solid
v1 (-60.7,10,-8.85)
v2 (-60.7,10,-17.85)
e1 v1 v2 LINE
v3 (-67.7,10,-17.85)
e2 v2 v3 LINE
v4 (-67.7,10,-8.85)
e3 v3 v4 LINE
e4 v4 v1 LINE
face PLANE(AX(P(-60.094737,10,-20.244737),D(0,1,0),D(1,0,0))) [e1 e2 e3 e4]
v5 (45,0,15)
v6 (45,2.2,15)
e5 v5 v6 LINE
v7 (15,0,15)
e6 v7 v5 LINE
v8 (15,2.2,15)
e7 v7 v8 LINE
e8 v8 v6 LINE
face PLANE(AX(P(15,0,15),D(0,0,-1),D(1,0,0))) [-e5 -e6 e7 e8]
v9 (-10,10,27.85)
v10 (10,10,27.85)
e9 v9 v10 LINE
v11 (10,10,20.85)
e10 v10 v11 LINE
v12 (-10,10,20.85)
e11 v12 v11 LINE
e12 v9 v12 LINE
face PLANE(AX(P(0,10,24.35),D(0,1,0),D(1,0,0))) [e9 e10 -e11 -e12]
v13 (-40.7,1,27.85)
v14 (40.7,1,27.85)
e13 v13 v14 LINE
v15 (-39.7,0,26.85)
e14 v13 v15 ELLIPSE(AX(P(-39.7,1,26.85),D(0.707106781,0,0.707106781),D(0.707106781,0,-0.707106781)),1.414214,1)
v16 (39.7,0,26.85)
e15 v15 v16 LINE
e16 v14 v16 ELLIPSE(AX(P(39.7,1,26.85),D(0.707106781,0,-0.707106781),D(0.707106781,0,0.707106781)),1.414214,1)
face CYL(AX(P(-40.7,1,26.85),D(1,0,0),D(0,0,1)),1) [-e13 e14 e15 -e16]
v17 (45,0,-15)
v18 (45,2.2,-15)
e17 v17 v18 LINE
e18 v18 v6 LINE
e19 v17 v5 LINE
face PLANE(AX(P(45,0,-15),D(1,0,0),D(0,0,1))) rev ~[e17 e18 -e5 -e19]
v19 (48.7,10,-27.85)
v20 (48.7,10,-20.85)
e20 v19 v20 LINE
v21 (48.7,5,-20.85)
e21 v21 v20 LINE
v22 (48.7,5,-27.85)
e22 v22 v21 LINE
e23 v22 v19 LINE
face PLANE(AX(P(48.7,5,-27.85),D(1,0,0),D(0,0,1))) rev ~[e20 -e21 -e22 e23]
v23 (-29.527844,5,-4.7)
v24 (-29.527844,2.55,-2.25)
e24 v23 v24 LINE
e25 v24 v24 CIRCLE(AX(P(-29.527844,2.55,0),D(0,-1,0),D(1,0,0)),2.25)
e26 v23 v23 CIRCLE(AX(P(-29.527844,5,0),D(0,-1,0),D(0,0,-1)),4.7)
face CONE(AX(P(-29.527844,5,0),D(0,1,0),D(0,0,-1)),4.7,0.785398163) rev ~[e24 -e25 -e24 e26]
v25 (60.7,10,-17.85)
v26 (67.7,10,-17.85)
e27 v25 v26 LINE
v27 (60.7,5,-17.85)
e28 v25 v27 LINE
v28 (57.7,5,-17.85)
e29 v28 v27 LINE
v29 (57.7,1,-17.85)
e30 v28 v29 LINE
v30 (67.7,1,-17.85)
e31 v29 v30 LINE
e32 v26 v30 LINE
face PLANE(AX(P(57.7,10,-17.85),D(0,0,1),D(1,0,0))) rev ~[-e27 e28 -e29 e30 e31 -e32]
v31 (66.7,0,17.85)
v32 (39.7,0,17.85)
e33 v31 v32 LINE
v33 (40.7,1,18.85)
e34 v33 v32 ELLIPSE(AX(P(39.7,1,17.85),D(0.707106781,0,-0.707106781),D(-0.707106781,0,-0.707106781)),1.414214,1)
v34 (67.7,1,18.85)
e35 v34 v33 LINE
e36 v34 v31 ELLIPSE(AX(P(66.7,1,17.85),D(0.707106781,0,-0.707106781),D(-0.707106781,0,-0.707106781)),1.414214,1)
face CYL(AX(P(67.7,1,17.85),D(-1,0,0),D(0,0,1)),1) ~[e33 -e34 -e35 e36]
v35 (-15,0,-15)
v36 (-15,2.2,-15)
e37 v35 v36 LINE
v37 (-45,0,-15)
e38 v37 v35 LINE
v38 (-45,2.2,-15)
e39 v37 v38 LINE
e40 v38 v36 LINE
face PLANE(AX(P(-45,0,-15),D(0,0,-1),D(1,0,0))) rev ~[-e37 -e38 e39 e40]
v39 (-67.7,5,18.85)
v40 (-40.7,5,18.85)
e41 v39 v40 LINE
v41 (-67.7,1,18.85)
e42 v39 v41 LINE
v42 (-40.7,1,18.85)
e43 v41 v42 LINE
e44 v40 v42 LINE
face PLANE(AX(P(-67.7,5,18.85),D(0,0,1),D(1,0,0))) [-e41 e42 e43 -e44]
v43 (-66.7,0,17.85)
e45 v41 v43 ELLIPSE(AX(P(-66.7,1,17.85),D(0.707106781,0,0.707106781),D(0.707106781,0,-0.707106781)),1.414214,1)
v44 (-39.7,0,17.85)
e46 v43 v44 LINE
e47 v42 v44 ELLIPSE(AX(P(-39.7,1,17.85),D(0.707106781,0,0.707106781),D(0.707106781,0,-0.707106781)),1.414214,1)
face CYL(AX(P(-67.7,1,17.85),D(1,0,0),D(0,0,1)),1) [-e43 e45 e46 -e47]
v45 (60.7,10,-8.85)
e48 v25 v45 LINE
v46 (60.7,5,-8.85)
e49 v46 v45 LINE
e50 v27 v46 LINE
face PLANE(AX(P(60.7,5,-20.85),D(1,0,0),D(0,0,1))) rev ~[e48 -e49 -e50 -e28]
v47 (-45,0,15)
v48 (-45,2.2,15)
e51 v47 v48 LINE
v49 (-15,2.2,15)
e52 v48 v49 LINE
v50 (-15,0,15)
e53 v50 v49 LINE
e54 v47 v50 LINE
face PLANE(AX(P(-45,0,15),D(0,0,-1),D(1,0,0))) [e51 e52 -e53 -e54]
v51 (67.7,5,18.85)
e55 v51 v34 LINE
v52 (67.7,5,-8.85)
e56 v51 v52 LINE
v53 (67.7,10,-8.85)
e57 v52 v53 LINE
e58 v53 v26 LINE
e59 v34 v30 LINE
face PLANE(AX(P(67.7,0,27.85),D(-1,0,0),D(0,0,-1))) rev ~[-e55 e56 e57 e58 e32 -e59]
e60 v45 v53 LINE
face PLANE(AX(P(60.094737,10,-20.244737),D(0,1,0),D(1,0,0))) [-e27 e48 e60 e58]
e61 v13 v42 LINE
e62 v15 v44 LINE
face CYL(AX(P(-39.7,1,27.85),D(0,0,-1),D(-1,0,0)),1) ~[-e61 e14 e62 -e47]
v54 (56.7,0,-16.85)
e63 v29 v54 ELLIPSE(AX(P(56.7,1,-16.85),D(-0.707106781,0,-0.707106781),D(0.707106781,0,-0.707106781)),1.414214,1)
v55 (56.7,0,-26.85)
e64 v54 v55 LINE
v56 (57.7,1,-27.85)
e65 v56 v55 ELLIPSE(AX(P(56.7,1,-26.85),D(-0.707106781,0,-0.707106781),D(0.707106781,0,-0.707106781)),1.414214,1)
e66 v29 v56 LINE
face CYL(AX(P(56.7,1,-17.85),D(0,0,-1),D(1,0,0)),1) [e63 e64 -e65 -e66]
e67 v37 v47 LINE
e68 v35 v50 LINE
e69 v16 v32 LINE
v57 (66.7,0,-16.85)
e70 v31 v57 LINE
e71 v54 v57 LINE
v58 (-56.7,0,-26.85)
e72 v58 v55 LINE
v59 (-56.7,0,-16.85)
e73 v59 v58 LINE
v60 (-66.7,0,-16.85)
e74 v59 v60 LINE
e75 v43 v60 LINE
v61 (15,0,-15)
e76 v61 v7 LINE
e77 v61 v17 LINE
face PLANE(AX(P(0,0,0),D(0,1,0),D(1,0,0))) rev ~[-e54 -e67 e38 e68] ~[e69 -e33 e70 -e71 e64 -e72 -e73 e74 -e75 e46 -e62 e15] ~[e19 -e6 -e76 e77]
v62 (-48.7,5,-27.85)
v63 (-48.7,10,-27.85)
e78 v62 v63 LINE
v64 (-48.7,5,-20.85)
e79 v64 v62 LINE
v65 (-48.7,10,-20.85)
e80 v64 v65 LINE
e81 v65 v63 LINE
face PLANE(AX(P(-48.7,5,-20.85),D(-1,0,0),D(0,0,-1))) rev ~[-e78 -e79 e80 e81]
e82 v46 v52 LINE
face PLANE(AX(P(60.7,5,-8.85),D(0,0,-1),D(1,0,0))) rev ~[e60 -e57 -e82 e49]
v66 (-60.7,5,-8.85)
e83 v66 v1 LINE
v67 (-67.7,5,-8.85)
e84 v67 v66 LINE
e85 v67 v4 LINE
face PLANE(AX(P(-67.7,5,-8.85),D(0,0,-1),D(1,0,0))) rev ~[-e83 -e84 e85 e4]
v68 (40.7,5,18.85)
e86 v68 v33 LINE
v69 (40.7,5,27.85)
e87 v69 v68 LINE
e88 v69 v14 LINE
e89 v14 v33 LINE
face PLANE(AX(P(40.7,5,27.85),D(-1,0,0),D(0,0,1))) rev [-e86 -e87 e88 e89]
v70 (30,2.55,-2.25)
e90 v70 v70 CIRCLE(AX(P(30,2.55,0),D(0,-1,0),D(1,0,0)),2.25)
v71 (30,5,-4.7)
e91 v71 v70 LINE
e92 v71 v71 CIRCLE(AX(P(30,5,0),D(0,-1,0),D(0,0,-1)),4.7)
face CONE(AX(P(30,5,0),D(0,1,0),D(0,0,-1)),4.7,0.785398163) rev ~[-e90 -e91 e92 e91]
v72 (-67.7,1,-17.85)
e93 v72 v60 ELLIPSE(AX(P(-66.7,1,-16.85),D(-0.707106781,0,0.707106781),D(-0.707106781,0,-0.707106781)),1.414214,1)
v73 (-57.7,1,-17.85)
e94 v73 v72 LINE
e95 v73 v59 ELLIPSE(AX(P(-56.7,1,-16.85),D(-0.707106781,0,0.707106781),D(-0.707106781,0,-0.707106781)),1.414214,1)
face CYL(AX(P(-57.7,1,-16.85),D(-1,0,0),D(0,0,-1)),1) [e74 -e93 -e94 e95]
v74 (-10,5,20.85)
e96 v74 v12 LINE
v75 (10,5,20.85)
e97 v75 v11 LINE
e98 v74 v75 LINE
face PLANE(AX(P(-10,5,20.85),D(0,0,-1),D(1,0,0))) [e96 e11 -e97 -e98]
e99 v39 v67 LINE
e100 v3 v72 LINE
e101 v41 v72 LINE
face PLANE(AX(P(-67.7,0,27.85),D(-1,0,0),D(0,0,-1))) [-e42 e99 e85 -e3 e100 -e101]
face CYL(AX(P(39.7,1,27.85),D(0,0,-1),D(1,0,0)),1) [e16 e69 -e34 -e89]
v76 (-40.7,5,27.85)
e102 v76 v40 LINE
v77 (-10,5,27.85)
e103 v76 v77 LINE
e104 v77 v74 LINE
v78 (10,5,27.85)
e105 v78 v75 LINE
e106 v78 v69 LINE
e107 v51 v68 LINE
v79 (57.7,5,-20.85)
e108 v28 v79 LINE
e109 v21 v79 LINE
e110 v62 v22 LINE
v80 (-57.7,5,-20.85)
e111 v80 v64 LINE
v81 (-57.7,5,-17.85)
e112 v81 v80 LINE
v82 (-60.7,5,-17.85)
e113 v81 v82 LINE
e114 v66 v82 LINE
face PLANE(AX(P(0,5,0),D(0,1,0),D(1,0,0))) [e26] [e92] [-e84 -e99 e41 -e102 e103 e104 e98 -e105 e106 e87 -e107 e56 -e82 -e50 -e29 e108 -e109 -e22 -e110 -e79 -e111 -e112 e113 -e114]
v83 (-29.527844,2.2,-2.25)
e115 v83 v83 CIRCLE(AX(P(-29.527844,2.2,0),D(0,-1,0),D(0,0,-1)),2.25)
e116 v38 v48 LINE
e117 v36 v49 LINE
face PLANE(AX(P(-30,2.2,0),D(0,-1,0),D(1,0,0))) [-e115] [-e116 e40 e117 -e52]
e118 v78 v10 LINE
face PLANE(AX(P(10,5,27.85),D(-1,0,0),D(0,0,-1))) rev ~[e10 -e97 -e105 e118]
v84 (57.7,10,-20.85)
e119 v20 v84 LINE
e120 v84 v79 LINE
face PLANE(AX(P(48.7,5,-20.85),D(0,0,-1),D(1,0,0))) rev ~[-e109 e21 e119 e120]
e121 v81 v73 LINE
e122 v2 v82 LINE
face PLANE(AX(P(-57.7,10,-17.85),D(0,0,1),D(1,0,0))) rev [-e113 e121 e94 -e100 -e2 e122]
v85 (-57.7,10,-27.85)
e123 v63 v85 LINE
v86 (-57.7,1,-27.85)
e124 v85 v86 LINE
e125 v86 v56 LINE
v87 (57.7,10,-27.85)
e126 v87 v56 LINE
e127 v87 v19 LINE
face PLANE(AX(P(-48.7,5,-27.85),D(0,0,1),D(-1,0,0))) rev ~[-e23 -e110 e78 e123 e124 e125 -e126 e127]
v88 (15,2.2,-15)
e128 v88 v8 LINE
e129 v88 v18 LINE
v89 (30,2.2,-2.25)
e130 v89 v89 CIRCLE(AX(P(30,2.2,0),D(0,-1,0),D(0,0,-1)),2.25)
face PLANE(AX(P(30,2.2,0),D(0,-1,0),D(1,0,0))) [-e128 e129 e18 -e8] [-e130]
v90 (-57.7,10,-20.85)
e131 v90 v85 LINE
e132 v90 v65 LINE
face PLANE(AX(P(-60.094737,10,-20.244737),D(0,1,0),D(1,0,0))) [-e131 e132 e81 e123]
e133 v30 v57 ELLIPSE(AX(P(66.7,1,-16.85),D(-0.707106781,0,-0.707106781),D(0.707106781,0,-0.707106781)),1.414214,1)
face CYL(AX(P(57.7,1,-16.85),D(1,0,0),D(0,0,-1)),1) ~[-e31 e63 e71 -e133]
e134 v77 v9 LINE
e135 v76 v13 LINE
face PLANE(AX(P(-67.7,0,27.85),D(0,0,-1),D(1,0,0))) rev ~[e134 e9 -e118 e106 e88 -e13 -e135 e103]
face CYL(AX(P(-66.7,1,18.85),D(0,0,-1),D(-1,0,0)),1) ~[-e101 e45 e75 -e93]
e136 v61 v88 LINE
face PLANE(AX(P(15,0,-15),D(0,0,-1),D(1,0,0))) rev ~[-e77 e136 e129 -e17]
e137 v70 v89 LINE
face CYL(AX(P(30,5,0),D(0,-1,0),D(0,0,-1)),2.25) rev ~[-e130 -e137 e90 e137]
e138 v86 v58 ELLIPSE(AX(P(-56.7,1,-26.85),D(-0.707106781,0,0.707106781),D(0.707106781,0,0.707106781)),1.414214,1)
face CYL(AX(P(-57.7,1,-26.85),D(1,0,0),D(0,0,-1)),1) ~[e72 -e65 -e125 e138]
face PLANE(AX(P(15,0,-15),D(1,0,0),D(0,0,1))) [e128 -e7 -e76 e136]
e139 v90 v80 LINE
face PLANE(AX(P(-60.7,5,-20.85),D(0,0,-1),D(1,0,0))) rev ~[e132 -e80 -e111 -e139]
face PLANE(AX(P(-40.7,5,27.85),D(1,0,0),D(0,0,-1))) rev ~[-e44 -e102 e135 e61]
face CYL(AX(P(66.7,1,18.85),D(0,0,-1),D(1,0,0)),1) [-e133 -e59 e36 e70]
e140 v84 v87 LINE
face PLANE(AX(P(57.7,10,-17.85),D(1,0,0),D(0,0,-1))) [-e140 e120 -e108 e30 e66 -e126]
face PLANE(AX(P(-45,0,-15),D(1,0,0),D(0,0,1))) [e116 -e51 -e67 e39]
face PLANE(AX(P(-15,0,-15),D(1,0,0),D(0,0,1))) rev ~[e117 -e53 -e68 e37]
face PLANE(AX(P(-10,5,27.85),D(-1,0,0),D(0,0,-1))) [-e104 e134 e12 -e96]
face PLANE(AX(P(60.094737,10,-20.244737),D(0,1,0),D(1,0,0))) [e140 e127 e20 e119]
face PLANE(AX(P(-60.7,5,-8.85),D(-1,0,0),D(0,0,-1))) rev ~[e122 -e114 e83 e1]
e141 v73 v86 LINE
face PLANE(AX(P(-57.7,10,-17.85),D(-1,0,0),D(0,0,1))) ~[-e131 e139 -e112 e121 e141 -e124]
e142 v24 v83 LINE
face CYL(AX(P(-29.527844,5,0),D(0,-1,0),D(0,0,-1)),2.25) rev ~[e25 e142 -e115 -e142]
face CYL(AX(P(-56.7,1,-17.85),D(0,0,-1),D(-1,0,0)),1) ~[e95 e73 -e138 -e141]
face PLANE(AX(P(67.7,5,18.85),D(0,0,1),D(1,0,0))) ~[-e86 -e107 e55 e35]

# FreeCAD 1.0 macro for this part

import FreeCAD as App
import Part
import Sketcher

V = App.Vector


def edges_at(feature, points):
    """Names of the edges that pass closest to the given points."""
    edges = feature.Shape.Edges
    near = lambda p: min(range(len(edges)), key=lambda i: edges[i].distToShape(Part.Vertex(*p))[0])
    return sorted({f"Edge{near(p) + 1}" for p in points})


def add_polygon(sketch, points):
    """Adds a closed chain of lines whose ends are joined by coincident constraints."""
    first, n = sketch.GeometryCount, len(points)
    for a, b in zip(points, points[1:] + points[:1]):
        sketch.addGeometry(Part.LineSegment(App.Vector(*a, 0), App.Vector(*b, 0)), False)
    for i in range(n):
        sketch.addConstraint(Sketcher.Constraint("Coincident", first + i, 2, first + (i + 1) % n, 1))

doc = App.newDocument("Part")
body = doc.addObject("PartDesign::Body", "Body")

# Sketch on XZ plane
sketch1 = body.newObject("Sketcher::SketchObject", "Sketch")
sketch1.AttachmentSupport = (doc.getObject("XZ_Plane"), [""])
sketch1.MapMode = "FlatFace"
add_polygon(sketch1, [(-67.7, -27.85), (-67.7, 27.85), (67.7, 27.85), (67.7, -27.85)])  # lines 0-3
sketch1.addConstraint(Sketcher.Constraint("Vertical", 0))
sketch1.addConstraint(Sketcher.Constraint("Horizontal", 1))
sketch1.addConstraint(Sketcher.Constraint("Vertical", 2))
sketch1.addConstraint(Sketcher.Constraint("Horizontal", 3))
sketch1.addConstraint(Sketcher.Constraint("Symmetric", 0, 2, 2, 2, -1, 1))
sketch1.addConstraint(Sketcher.Constraint("DistanceX", 1, 1, 1, 2, 135.4))
sketch1.addConstraint(Sketcher.Constraint("DistanceY", 0, 1, 0, 2, 55.7))
pad1 = body.newObject("PartDesign::Pad", "Pad")
pad1.Profile = sketch1
pad1.Length = 5
pad1.Reversed = True

# Sketch on XZ plane
sketch2 = body.newObject("Sketcher::SketchObject", "Sketch001")
sketch2.AttachmentSupport = (doc.getObject("XZ_Plane"), [""])
sketch2.MapMode = "FlatFace"
sketch2.AttachmentOffset = App.Placement(V(0, 0, -5), App.Rotation())
add_polygon(sketch2, [(-60.7, -20.85), (-48.7, -20.85), (-48.7, -27.85), (-67.7, -27.85), (-67.7, -8.85), (-60.7, -8.85)])  # lines 0-5
add_polygon(sketch2, [(-10, 20.85), (-10, 27.85), (10, 27.85), (10, 20.85)])  # lines 6-9
add_polygon(sketch2, [(67.7, -27.85), (48.7, -27.85), (48.7, -20.85), (60.7, -20.85), (60.7, -8.85), (67.7, -8.85)])  # lines 10-15
sketch2.addConstraint(Sketcher.Constraint("Horizontal", 0))
sketch2.addConstraint(Sketcher.Constraint("Vertical", 1))
sketch2.addConstraint(Sketcher.Constraint("Horizontal", 2))
sketch2.addConstraint(Sketcher.Constraint("Vertical", 3))
sketch2.addConstraint(Sketcher.Constraint("Horizontal", 4))
sketch2.addConstraint(Sketcher.Constraint("Vertical", 5))
sketch2.addConstraint(Sketcher.Constraint("Vertical", 6))
sketch2.addConstraint(Sketcher.Constraint("Horizontal", 7))
sketch2.addConstraint(Sketcher.Constraint("Vertical", 8))
sketch2.addConstraint(Sketcher.Constraint("Horizontal", 9))
sketch2.addConstraint(Sketcher.Constraint("Horizontal", 10))
sketch2.addConstraint(Sketcher.Constraint("Vertical", 11))
sketch2.addConstraint(Sketcher.Constraint("Horizontal", 12))
sketch2.addConstraint(Sketcher.Constraint("Vertical", 13))
sketch2.addConstraint(Sketcher.Constraint("Horizontal", 14))
sketch2.addConstraint(Sketcher.Constraint("Vertical", 15))
sketch2.addConstraint(Sketcher.Constraint("Symmetric", 1, 2, 10, 2, -2))
sketch2.addConstraint(Sketcher.Constraint("Symmetric", 5, 2, 12, 2, -2))
sketch2.addConstraint(Sketcher.Constraint("Symmetric", 3, 2, 14, 2, -2))
sketch2.addConstraint(Sketcher.Constraint("Equal", 14, 1))
sketch2.addConstraint(Sketcher.Constraint("Equal", 10, 3))
sketch2.addConstraint(Sketcher.Constraint("Equal", 1, 6))
sketch2.addConstraint(Sketcher.Constraint("DistanceX", 0, 1, 0, 2, 12.0))
sketch2.addConstraint(Sketcher.Constraint("DistanceX", 2, 2, 2, 1, 19.0))
sketch2.addConstraint(Sketcher.Constraint("DistanceX", 7, 1, 7, 2, 20.0))
sketch2.addConstraint(Sketcher.Constraint("DistanceX", 6, 2, -1, 1, 10.0))
sketch2.addConstraint(Sketcher.Constraint("DistanceX", 0, 2, -1, 1, 48.7))
sketch2.addConstraint(Sketcher.Constraint("DistanceY", 0, 2, 6, 2, 48.7))
sketch2.addConstraint(Sketcher.Constraint("DistanceY", 0, 2, -1, 1, 20.85))
pad2 = body.newObject("PartDesign::Pad", "Pad001")
pad2.Profile = sketch2
pad2.Length = 5
pad2.Reversed = True

# Sketch on XZ plane
sketch3 = body.newObject("Sketcher::SketchObject", "Sketch002")
sketch3.AttachmentSupport = (doc.getObject("XZ_Plane"), [""])
sketch3.MapMode = "FlatFace"
sketch3.AttachmentOffset = App.Placement(V(0, 0, -5), App.Rotation())
add_polygon(sketch3, [(-67.7, 18.85), (-67.7, 27.85), (-40.7, 27.85), (-40.7, 18.85)])  # lines 0-3
sketch3.addConstraint(Sketcher.Constraint("Vertical", 0))
sketch3.addConstraint(Sketcher.Constraint("Horizontal", 1))
sketch3.addConstraint(Sketcher.Constraint("Vertical", 2))
sketch3.addConstraint(Sketcher.Constraint("Horizontal", 3))
sketch3.addConstraint(Sketcher.Constraint("DistanceX", 1, 1, 1, 2, 27.0))
sketch3.addConstraint(Sketcher.Constraint("DistanceY", 0, 1, 0, 2, 9.0))
sketch3.addConstraint(Sketcher.Constraint("DistanceX", 0, 2, -1, 1, 67.7))
sketch3.addConstraint(Sketcher.Constraint("DistanceY", -1, 1, 0, 2, 27.85))
pocket1 = body.newObject("PartDesign::Pocket", "Pocket")
pocket1.Profile = sketch3
pocket1.Type = "ThroughAll"
pocket1.Reversed = True
doc.recompute()

mirrored = body.newObject("PartDesign::Mirrored", "Mirrored")
mirrored.Originals = [pocket1]
mirrored.MirrorPlane = (doc.getObject("YZ_Plane"), [""])
body.Tip = mirrored

# Sketch on XZ plane
sketch4 = body.newObject("Sketcher::SketchObject", "Sketch003")
sketch4.AttachmentSupport = (doc.getObject("XZ_Plane"), [""])
sketch4.MapMode = "FlatFace"
sketch4.AttachmentOffset = App.Placement(V(0, 0, -5), App.Rotation())
sketch4.addGeometry(Part.Circle(V(-29.527844, 0, 0), V(0, 0, 1), 2.25), False)
sketch4.addGeometry(Part.Circle(V(30, 0, 0), V(0, 0, 1), 2.25), False)
sketch4.addConstraint(Sketcher.Constraint("Equal", 0, 1))
sketch4.addConstraint(Sketcher.Constraint("PointOnObject", 0, 3, -1))
sketch4.addConstraint(Sketcher.Constraint("PointOnObject", 1, 3, -1))
sketch4.addConstraint(Sketcher.Constraint("Diameter", 0, 4.5))
sketch4.addConstraint(Sketcher.Constraint("DistanceX", -1, 1, 1, 3, 30.0))
sketch4.addConstraint(Sketcher.Constraint("DistanceX", 0, 3, -1, 1, 29.527844))
doc.recompute()
hole = body.newObject("PartDesign::Hole", "Hole")
hole.Profile = sketch4
hole.ThreadType = "None"
hole.Diameter = 4.5
hole.DepthType = "ThroughAll"
hole.HoleCutType = "Countersink"
hole.HoleCutDiameter = 9.4
hole.HoleCutCountersinkAngle = 90
hole.Reversed = True

# Sketch on XZ plane
sketch5 = body.newObject("Sketcher::SketchObject", "Sketch004")
sketch5.AttachmentSupport = (doc.getObject("XZ_Plane"), [""])
sketch5.MapMode = "FlatFace"
add_polygon(sketch5, [(-45, 15), (-45, -15), (-15, -15), (-15, 15)])  # lines 0-3
add_polygon(sketch5, [(15, 15), (15, -15), (45, -15), (45, 15)])  # lines 4-7
sketch5.addConstraint(Sketcher.Constraint("Vertical", 0))
sketch5.addConstraint(Sketcher.Constraint("Horizontal", 1))
sketch5.addConstraint(Sketcher.Constraint("Vertical", 2))
sketch5.addConstraint(Sketcher.Constraint("Horizontal", 3))
sketch5.addConstraint(Sketcher.Constraint("Vertical", 4))
sketch5.addConstraint(Sketcher.Constraint("Horizontal", 5))
sketch5.addConstraint(Sketcher.Constraint("Vertical", 6))
sketch5.addConstraint(Sketcher.Constraint("Horizontal", 7))
sketch5.addConstraint(Sketcher.Constraint("Symmetric", 2, 2, 4, 2, -1, 1))
sketch5.addConstraint(Sketcher.Constraint("Symmetric", 0, 2, 6, 2, -1, 1))
sketch5.addConstraint(Sketcher.Constraint("Horizontal", 1, 2, 4, 2))
sketch5.addConstraint(Sketcher.Constraint("Equal", 7, 0))
sketch5.addConstraint(Sketcher.Constraint("DistanceX", 1, 1, 1, 2, 30.0))
sketch5.addConstraint(Sketcher.Constraint("DistanceX", 0, 2, -1, 1, 45.0))
pocket2 = body.newObject("PartDesign::Pocket", "Pocket001")
pocket2.Profile = sketch5
pocket2.Length = 2.2

# Sketch on XZ plane
sketch6 = body.newObject("Sketcher::SketchObject", "Sketch005")
sketch6.AttachmentSupport = (doc.getObject("XZ_Plane"), [""])
sketch6.MapMode = "FlatFace"
sketch6.AttachmentOffset = App.Placement(V(0, 0, -10), App.Rotation())
add_polygon(sketch6, [(57.7, -27.85), (57.7, -17.85), (67.7, -17.85), (67.7, -27.85)])  # lines 0-3
sketch6.addConstraint(Sketcher.Constraint("Vertical", 0))
sketch6.addConstraint(Sketcher.Constraint("Horizontal", 1))
sketch6.addConstraint(Sketcher.Constraint("Vertical", 2))
sketch6.addConstraint(Sketcher.Constraint("Horizontal", 3))
sketch6.addConstraint(Sketcher.Constraint("Equal", 3, 0))
sketch6.addConstraint(Sketcher.Constraint("DistanceX", 1, 1, 1, 2, 10.0))
sketch6.addConstraint(Sketcher.Constraint("DistanceX", -1, 1, 0, 2, 57.7))
sketch6.addConstraint(Sketcher.Constraint("DistanceY", 0, 2, -1, 1, 17.85))
pocket3 = body.newObject("PartDesign::Pocket", "Pocket002")
pocket3.Profile = sketch6
pocket3.Type = "ThroughAll"
pocket3.Reversed = True
doc.recompute()

mirrored2 = body.newObject("PartDesign::Mirrored", "Mirrored001")
mirrored2.Originals = [pocket3]
mirrored2.MirrorPlane = (doc.getObject("YZ_Plane"), [""])
body.Tip = mirrored2
doc.recompute()

fillet = body.newObject("PartDesign::Fillet", "Fillet")
fillet.Base = (mirrored2, edges_at(mirrored2, [
    (0, 0, -27.85),
    (62.7, 0, -17.85),
    (57.7, 0, -22.85),
    (-67.7, 0, 0.5),
    (-57.7, 0, -22.85),
    (-62.7, 0, -17.85),
    (0, 0, 27.85),
    (-54.2, 0, 18.85),
    (-40.7, 0, 23.35),
    (67.7, 0, 0.5),
    (40.7, 0, 23.35),
    (54.2, 0, 18.85),
]))
fillet.Radius = 1

doc.recompute()
